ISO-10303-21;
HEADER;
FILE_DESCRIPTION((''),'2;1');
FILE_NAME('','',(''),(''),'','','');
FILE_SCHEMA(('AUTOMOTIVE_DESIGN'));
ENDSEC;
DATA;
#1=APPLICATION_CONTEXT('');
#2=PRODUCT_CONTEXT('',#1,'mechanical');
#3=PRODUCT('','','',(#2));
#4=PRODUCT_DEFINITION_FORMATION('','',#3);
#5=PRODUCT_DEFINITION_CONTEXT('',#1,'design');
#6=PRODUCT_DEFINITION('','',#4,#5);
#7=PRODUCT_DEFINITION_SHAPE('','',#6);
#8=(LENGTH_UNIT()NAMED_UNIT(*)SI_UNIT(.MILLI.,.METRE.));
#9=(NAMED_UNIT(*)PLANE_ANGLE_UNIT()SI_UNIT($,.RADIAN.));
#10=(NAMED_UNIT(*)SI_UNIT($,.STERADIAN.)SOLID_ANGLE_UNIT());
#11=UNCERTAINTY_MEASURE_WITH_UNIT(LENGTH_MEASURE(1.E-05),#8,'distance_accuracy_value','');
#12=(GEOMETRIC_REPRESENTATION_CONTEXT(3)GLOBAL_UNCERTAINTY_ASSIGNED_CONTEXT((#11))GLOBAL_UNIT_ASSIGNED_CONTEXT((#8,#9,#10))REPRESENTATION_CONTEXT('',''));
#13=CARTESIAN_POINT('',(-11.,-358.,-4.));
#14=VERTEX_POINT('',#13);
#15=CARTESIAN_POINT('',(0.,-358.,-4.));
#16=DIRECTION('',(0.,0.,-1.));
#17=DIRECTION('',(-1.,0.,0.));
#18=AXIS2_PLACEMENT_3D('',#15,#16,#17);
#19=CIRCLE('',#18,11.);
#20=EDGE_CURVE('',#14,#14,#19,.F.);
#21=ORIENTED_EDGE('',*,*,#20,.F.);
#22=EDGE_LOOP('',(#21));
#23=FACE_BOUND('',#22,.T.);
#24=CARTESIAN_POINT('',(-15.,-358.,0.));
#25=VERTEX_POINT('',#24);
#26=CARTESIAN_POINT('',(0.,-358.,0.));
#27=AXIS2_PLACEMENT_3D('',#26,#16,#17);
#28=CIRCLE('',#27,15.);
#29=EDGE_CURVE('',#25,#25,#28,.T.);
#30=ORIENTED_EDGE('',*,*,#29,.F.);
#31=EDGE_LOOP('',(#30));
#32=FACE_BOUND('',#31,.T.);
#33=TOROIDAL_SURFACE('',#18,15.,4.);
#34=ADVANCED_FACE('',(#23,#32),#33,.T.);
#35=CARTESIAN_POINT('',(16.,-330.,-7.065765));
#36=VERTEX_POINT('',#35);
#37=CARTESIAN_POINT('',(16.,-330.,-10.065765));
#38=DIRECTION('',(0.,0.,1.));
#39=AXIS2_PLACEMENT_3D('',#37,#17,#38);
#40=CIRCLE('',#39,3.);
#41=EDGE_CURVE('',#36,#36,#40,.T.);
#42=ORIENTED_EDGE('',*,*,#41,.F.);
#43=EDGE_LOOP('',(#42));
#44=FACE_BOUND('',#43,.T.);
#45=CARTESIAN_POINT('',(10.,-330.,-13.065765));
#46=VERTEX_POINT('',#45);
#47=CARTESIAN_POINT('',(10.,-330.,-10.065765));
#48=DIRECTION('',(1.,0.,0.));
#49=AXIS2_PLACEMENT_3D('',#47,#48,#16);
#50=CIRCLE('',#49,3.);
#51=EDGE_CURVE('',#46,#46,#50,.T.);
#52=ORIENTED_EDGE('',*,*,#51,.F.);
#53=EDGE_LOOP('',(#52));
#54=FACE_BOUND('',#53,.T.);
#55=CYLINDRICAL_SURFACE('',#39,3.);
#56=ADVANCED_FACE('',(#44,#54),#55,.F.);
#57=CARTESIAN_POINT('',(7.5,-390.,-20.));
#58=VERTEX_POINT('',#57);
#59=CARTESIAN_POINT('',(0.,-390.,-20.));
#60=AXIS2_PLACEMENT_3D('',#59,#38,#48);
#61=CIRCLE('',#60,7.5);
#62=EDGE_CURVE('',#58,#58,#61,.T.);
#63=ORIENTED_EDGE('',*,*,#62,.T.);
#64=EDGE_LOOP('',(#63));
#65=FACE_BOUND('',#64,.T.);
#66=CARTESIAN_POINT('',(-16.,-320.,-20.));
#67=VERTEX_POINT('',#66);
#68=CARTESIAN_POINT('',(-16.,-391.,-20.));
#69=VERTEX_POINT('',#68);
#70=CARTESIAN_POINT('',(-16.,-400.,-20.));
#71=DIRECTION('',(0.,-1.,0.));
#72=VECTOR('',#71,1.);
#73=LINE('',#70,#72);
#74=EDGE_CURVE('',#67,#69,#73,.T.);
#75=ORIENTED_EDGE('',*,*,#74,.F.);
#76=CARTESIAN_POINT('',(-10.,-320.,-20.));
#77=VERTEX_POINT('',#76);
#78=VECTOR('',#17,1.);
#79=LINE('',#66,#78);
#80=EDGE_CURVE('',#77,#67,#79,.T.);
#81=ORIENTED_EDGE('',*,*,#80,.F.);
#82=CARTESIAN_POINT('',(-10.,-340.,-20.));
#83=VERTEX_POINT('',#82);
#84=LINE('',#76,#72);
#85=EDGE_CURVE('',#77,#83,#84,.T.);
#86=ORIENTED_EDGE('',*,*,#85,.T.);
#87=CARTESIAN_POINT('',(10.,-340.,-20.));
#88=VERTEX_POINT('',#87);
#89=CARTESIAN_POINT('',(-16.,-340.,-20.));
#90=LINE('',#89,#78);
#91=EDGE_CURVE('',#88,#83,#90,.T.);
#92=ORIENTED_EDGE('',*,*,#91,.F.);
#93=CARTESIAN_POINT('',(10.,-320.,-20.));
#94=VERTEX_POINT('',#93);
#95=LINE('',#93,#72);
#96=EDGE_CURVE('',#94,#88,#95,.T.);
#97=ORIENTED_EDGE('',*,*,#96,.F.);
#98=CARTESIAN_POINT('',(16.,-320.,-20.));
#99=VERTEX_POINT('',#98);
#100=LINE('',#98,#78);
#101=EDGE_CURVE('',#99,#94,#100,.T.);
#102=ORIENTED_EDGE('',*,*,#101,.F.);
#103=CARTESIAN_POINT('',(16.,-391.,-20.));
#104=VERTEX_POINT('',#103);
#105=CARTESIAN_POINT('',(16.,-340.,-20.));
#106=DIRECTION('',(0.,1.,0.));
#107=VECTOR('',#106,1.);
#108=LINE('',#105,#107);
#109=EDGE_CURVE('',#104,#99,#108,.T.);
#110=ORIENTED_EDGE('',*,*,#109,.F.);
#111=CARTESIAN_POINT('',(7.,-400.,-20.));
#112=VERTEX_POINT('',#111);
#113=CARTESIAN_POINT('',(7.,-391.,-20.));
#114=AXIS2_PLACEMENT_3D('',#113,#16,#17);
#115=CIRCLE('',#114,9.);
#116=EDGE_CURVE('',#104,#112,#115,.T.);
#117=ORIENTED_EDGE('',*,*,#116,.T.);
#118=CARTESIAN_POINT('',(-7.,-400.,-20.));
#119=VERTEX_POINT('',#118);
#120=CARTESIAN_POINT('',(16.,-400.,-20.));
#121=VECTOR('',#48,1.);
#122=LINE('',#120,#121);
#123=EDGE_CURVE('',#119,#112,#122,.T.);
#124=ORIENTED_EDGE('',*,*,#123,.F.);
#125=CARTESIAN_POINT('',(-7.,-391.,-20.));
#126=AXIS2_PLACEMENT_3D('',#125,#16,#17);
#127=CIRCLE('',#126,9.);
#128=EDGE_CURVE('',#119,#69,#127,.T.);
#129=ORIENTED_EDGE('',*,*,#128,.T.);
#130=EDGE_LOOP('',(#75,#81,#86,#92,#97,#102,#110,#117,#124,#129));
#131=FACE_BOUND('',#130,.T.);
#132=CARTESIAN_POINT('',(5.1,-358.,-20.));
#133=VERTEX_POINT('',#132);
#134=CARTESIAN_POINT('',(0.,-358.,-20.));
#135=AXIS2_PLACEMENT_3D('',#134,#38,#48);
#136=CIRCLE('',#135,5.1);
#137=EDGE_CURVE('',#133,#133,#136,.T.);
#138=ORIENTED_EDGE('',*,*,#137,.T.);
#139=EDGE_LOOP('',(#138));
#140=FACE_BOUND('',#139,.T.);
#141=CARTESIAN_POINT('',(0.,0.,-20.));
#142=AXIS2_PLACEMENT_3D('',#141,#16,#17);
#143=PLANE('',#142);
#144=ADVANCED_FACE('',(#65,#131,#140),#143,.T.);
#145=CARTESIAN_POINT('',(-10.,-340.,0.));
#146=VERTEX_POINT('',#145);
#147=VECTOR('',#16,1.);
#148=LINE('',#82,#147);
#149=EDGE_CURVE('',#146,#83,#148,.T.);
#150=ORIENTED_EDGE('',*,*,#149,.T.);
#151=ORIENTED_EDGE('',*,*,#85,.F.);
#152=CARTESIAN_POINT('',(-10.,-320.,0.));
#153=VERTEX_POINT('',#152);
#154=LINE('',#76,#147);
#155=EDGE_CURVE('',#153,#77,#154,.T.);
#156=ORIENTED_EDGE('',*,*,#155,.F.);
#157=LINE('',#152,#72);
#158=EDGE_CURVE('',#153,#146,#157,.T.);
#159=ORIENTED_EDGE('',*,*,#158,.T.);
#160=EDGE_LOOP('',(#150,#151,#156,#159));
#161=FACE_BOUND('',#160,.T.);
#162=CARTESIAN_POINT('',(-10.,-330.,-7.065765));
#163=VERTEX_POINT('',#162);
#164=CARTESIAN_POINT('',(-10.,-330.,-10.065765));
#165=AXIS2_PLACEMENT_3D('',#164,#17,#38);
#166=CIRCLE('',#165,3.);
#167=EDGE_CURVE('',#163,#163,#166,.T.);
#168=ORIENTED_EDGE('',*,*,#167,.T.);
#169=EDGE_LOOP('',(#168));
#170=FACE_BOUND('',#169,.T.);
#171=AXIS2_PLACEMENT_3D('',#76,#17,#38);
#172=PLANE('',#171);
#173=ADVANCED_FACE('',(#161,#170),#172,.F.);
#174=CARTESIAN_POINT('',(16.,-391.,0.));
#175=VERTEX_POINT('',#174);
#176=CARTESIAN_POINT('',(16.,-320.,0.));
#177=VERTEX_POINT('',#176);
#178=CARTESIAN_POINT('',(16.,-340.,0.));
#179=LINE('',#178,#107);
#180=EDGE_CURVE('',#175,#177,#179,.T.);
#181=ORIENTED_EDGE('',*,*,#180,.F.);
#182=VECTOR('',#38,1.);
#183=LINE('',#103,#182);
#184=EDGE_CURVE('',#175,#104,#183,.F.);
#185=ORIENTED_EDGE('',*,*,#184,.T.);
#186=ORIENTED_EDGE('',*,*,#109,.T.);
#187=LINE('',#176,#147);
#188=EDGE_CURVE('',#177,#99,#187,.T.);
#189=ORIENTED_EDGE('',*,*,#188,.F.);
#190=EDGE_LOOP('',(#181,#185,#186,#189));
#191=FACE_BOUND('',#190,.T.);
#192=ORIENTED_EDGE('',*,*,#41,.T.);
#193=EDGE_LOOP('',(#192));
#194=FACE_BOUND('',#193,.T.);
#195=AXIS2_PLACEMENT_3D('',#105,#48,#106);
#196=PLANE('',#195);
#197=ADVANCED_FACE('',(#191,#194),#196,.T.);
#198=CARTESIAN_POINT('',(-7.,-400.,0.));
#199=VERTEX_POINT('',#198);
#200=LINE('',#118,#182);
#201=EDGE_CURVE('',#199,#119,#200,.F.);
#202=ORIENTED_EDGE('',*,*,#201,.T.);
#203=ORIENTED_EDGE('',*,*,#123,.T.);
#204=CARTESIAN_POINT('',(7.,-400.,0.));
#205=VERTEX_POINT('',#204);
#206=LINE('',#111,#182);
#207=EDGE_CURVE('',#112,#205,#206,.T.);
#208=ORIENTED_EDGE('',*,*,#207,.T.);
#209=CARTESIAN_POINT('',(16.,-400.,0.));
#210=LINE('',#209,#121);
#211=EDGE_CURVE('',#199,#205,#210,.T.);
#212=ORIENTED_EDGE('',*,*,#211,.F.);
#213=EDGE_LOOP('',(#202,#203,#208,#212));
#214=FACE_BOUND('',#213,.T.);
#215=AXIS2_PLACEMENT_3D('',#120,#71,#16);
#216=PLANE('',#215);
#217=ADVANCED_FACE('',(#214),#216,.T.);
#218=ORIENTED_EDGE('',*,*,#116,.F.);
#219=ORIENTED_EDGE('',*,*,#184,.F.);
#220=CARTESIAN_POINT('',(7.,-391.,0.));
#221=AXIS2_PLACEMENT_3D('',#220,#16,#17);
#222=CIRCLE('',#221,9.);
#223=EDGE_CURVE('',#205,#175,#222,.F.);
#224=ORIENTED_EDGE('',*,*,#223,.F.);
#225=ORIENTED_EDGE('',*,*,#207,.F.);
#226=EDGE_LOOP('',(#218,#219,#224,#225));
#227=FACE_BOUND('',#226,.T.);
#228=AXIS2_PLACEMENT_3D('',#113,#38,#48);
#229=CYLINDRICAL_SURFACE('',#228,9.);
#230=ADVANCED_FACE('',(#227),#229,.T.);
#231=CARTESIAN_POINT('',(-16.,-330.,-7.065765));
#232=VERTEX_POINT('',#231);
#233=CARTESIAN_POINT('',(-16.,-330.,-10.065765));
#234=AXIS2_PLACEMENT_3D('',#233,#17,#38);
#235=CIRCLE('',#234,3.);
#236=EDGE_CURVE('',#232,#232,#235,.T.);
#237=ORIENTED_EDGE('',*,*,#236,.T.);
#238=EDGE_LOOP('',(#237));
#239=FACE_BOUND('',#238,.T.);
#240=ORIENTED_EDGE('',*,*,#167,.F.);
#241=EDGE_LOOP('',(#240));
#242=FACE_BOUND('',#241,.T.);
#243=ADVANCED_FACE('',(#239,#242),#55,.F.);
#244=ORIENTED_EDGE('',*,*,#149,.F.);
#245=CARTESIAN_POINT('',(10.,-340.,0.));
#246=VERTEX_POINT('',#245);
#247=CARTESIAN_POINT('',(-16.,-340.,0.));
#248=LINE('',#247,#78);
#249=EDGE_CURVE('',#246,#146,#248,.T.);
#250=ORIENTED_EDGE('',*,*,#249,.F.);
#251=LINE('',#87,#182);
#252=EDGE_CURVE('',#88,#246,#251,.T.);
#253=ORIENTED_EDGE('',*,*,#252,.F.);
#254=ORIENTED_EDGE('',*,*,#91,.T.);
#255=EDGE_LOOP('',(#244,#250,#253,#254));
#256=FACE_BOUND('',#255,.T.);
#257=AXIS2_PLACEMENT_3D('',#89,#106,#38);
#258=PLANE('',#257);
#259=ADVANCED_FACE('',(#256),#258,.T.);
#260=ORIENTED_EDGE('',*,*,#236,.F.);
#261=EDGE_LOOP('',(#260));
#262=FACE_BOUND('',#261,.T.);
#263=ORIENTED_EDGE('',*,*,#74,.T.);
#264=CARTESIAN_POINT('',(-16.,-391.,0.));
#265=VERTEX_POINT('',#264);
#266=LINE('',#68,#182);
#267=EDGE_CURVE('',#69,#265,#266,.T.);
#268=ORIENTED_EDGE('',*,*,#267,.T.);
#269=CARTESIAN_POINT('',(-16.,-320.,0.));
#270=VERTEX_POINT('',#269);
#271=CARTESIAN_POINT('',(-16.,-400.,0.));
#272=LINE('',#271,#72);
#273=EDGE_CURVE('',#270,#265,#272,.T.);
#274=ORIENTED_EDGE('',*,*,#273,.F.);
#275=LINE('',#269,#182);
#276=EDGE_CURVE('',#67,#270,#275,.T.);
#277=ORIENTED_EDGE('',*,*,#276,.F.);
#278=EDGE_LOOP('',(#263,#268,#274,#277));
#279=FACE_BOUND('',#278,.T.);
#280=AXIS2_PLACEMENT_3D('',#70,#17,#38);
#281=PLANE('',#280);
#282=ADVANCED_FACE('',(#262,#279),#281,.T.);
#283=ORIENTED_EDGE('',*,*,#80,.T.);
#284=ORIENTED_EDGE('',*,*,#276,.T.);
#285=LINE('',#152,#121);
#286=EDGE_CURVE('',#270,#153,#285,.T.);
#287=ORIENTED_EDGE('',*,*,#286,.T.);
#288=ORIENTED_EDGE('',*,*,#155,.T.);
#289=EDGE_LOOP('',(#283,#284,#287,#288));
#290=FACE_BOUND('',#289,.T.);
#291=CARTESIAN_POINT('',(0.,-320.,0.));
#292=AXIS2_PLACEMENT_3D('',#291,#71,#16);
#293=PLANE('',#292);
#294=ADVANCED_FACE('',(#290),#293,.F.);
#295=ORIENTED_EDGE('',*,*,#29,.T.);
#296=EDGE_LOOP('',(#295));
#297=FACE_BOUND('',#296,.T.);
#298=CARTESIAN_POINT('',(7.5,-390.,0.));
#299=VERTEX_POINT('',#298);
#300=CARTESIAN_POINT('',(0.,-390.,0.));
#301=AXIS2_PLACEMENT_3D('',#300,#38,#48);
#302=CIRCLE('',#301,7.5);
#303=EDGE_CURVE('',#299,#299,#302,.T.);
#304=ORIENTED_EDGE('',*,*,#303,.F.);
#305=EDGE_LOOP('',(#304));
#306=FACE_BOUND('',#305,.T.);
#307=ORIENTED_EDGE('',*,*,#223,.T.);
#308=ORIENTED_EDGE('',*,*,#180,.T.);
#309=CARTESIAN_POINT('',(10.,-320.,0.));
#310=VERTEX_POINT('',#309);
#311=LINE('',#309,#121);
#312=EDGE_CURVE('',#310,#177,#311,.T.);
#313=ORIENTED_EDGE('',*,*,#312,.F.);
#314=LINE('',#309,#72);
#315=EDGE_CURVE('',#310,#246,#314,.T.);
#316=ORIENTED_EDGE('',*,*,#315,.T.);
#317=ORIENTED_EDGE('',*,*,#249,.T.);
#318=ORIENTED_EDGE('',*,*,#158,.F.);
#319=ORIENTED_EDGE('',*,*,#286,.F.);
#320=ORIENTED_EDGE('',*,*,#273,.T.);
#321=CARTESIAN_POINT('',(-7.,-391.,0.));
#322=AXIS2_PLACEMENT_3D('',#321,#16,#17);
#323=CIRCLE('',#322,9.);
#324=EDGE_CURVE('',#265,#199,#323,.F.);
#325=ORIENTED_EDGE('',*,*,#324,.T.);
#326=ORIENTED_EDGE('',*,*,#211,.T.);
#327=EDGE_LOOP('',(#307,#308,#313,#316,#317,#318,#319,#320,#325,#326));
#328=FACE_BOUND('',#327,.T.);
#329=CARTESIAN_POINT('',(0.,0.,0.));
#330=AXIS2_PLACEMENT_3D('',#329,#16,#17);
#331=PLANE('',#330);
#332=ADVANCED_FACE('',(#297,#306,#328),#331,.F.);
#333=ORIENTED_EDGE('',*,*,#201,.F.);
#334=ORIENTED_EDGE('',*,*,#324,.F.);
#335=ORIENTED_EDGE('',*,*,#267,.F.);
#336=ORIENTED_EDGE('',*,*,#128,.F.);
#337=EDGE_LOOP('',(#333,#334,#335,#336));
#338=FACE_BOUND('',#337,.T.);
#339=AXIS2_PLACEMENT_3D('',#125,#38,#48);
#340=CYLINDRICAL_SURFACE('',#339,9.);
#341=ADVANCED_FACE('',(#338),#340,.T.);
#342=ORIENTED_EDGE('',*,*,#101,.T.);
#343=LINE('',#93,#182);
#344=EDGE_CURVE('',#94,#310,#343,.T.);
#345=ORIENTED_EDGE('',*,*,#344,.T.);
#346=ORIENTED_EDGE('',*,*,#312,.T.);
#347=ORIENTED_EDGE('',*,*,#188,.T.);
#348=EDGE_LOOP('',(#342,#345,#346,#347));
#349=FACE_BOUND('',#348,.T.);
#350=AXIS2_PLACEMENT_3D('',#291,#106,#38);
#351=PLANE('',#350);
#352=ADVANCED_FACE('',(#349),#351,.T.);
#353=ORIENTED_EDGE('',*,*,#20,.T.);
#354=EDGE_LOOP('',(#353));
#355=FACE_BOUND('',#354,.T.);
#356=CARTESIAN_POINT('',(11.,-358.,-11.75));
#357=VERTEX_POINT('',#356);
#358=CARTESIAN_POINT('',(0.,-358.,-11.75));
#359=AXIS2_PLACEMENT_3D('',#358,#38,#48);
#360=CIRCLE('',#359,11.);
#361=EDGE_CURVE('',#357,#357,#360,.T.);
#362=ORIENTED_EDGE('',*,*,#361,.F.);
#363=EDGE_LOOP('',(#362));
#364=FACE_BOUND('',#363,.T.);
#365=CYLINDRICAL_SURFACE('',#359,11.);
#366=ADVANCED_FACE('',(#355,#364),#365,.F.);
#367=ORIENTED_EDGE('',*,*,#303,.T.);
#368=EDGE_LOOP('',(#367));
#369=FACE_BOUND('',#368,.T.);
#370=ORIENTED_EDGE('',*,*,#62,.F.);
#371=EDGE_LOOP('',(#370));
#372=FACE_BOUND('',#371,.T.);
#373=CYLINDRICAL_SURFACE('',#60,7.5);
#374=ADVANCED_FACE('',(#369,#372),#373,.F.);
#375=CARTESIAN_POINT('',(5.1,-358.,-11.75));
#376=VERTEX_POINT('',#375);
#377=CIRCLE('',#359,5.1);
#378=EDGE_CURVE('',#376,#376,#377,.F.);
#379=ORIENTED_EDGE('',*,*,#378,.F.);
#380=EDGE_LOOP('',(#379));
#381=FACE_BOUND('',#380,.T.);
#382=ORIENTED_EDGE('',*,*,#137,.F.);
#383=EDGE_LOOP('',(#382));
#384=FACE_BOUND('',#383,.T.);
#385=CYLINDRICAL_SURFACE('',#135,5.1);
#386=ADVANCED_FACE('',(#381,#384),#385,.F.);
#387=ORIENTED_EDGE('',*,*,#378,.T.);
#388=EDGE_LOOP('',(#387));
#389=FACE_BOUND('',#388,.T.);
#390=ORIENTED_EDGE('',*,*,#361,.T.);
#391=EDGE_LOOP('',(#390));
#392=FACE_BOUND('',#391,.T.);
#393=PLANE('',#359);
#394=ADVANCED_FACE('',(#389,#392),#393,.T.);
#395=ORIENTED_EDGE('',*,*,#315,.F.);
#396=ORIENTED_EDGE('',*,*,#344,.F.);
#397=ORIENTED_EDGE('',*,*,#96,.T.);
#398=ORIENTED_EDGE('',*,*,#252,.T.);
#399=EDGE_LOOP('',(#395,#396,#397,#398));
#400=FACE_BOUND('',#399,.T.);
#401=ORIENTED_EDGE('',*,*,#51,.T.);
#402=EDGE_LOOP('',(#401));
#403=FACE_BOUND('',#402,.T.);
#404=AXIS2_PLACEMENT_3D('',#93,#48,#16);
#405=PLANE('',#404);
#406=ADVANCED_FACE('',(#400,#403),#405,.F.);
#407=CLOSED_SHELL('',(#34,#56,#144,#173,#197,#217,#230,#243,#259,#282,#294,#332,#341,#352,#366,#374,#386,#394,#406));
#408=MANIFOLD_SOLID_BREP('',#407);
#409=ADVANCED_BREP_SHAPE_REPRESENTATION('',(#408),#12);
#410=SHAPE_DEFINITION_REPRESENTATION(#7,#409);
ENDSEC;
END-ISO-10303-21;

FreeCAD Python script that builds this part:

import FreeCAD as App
import Part
import Sketcher


def edges_at(feature, points):
    """Names of the edges that pass closest to the given points."""
    edges = feature.Shape.Edges
    near = lambda p: min(range(len(edges)), key=lambda i: edges[i].distToShape(Part.Vertex(*p))[0])
    return sorted({f"Edge{near(p) + 1}" for p in points})

doc = App.newDocument("Part")
body = doc.addObject("PartDesign::Body", "Body")

sketch1 = body.newObject("Sketcher::SketchObject", "Sketch")
sketch1.AttachmentSupport = (doc.getObject("XY_Plane"), [""])
sketch1.MapMode = "FlatFace"
sketch1.addGeometry([
    Part.LineSegment(App.Vector(-16, -340, 0), App.Vector(-16, -400, 0)),
    Part.LineSegment(App.Vector(-16, -400, 0), App.Vector(16, -400, 0)),
    Part.LineSegment(App.Vector(16, -400, 0), App.Vector(16, -340, 0)),
    Part.LineSegment(App.Vector(16, -340, 0), App.Vector(-16, -340, 0)),
], False)
sketch1.addConstraint([
    Sketcher.Constraint("Coincident", 0, 2, 1, 1),
    Sketcher.Constraint("Coincident", 1, 2, 2, 1),
    Sketcher.Constraint("Coincident", 2, 2, 3, 1),
    Sketcher.Constraint("Coincident", 3, 2, 0, 1),
    Sketcher.Constraint("Vertical", 0),
    Sketcher.Constraint("Horizontal", 1),
    Sketcher.Constraint("Vertical", 2),
    Sketcher.Constraint("Horizontal", 3),
    Sketcher.Constraint("DistanceX", 1, 1, 1, 2, 32.0),
    Sketcher.Constraint("DistanceY", 0, 2, 0, 1, 60.0),
    Sketcher.Constraint("DistanceX", 0, 2, -1, 1, 16.0),
    Sketcher.Constraint("DistanceY", 0, 2, -1, 1, 400.0),
])
pad1 = body.newObject("PartDesign::Pad", "Pad")
pad1.Profile = sketch1
pad1.Length = 20
pad1.Reversed = True

sketch2 = body.newObject("Sketcher::SketchObject", "Sketch001")
sketch2.AttachmentSupport = (doc.getObject("XY_Plane"), [""])
sketch2.MapMode = "FlatFace"
sketch2.addGeometry([
    Part.Circle(App.Vector(0, -390, 0), App.Vector(0, 0, 1), 7.5),
    Part.Circle(App.Vector(0, -358, 0), App.Vector(0, 0, 1), 5.1),
], False)
sketch2.addConstraint([
    Sketcher.Constraint("PointOnObject", 0, 3, -2),
    Sketcher.Constraint("PointOnObject", 1, 3, -2),
    Sketcher.Constraint("Diameter", 0, 15.0),
    Sketcher.Constraint("Diameter", 1, 10.2),
    Sketcher.Constraint("DistanceY", 0, 3, -1, 1, 390.0),
    Sketcher.Constraint("DistanceY", 1, 3, -1, 1, 358.0),
])
pocket1 = body.newObject("PartDesign::Pocket", "Pocket")
pocket1.Profile = sketch2
pocket1.Type = "ThroughAll"

sketch3 = body.newObject("Sketcher::SketchObject", "Sketch002")
sketch3.AttachmentSupport = (doc.getObject("XY_Plane"), [""])
sketch3.MapMode = "FlatFace"
sketch3.addGeometry(Part.Circle(App.Vector(0, -358, 0), App.Vector(0, 0, 1), 11), False)
sketch3.addConstraint([
    Sketcher.Constraint("PointOnObject", 0, 3, -2),
    Sketcher.Constraint("Diameter", 0, 22.0),
    Sketcher.Constraint("DistanceY", 0, 3, -1, 1, 358.0),
])
pocket2 = body.newObject("PartDesign::Pocket", "Pocket001")
pocket2.Profile = sketch3
pocket2.Length = 11.75

sketch4 = body.newObject("Sketcher::SketchObject", "Sketch003")
sketch4.AttachmentSupport = (doc.getObject("XZ_Plane"), [""])
sketch4.MapMode = "FlatFace"
sketch4.AttachmentOffset = App.Placement(App.Vector(0, 0, 340), App.Rotation())
sketch4.addGeometry([
    Part.LineSegment(App.Vector(10, -20, 0), App.Vector(10, 0, 0)),
    Part.LineSegment(App.Vector(10, 0, 0), App.Vector(16, 0, 0)),
    Part.LineSegment(App.Vector(16, 0, 0), App.Vector(16, -20, 0)),
    Part.LineSegment(App.Vector(16, -20, 0), App.Vector(10, -20, 0)),
    Part.LineSegment(App.Vector(-16, -20, 0), App.Vector(-16, 0, 0)),
    Part.LineSegment(App.Vector(-16, 0, 0), App.Vector(-10, 0, 0)),
    Part.LineSegment(App.Vector(-10, 0, 0), App.Vector(-10, -20, 0)),
    Part.LineSegment(App.Vector(-10, -20, 0), App.Vector(-16, -20, 0)),
], False)
sketch4.addConstraint([
    Sketcher.Constraint("Coincident", 0, 2, 1, 1),
    Sketcher.Constraint("Coincident", 1, 2, 2, 1),
    Sketcher.Constraint("Coincident", 2, 2, 3, 1),
    Sketcher.Constraint("Coincident", 3, 2, 0, 1),
    Sketcher.Constraint("Coincident", 4, 2, 5, 1),
    Sketcher.Constraint("Coincident", 5, 2, 6, 1),
    Sketcher.Constraint("Coincident", 6, 2, 7, 1),
    Sketcher.Constraint("Coincident", 7, 2, 4, 1),
    Sketcher.Constraint("Vertical", 0),
    Sketcher.Constraint("Horizontal", 1),
    Sketcher.Constraint("Vertical", 2),
    Sketcher.Constraint("Horizontal", 3),
    Sketcher.Constraint("Vertical", 4),
    Sketcher.Constraint("Horizontal", 5),
    Sketcher.Constraint("Vertical", 6),
    Sketcher.Constraint("Horizontal", 7),
    Sketcher.Constraint("Symmetric", 1, 2, 4, 2, -1, 1),
    Sketcher.Constraint("Symmetric", 0, 2, 5, 2, -2),
    Sketcher.Constraint("Horizontal", 3, 2, 6, 2),
    Sketcher.Constraint("DistanceX", 1, 1, 1, 2, 6.0),
    Sketcher.Constraint("DistanceY", 0, 1, 0, 2, 20.0),
    Sketcher.Constraint("DistanceX", -1, 1, 0, 2, 10.0),
])
pad2 = body.newObject("PartDesign::Pad", "Pad001")
pad2.Profile = sketch4
pad2.Length = 20
pad2.Reversed = True

sketch5 = body.newObject("Sketcher::SketchObject", "Sketch004")
sketch5.AttachmentSupport = (doc.getObject("YZ_Plane"), [""])
sketch5.MapMode = "FlatFace"
sketch5.AttachmentOffset = App.Placement(App.Vector(0, 0, -16), App.Rotation())
sketch5.addGeometry(Part.Circle(App.Vector(-330, -10.065765, 0), App.Vector(0, 0, 1), 3), False)
sketch5.addConstraint([
    Sketcher.Constraint("Diameter", 0, 6.0),
    Sketcher.Constraint("DistanceX", 0, 3, -1, 1, 330.0),
    Sketcher.Constraint("DistanceY", 0, 3, -1, 1, 10.065765),
])
pocket3 = body.newObject("PartDesign::Pocket", "Pocket002")
pocket3.Profile = sketch5
pocket3.Type = "ThroughAll"
pocket3.Reversed = True
doc.recompute()

fillet = body.newObject("PartDesign::Fillet", "Fillet")
fillet.Base = (pocket3, edges_at(pocket3, [(16, -400, -10), (-16, -400, -10)]))
fillet.Radius = 9
doc.recompute()

fillet2 = body.newObject("PartDesign::Fillet", "Fillet001")
fillet2.Base = (fillet, edges_at(fillet, [(-11, -358, 0)]))
fillet2.Radius = 4

doc.recompute()
